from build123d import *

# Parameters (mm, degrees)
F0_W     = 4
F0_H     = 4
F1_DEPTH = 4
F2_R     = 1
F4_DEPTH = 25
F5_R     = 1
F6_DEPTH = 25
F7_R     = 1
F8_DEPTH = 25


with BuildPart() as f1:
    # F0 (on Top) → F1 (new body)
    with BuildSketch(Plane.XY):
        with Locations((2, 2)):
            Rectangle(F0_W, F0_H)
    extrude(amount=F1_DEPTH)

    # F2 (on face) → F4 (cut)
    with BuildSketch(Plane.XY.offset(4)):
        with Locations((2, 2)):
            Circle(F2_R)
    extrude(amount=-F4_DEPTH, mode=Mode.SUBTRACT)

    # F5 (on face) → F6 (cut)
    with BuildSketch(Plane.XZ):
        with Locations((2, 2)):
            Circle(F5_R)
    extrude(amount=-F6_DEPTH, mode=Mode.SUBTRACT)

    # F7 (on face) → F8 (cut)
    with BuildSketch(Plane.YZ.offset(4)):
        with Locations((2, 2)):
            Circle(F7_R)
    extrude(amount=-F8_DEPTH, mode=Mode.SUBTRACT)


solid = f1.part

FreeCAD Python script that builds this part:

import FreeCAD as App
import Part
import Sketcher

V = App.Vector
Q = App.Units.Quantity


def add_polygon(sketch, points):
    """Adds a closed chain of lines whose ends are joined by coincident constraints."""
    first, n = sketch.GeometryCount, len(points)
    for a, b in zip(points, points[1:] + points[:1]):
        sketch.addGeometry(Part.LineSegment(App.Vector(*a, 0), App.Vector(*b, 0)), False)
    for i in range(n):
        sketch.addConstraint(Sketcher.Constraint("Coincident", first + i, 2, first + (i + 1) % n, 1))

doc = App.newDocument("Part")
body = doc.addObject("PartDesign::Body", "Body")

# Sketch on XY plane
sketch1 = doc.addObject("Sketcher::SketchObject", "Sketch")
body.addObject(sketch1)
sketch1.AttachmentSupport = (doc.XY_Plane, [""])
sketch1.MapMode = "FlatFace"
add_polygon(sketch1, [(0, 4), (0, 0), (4, 0), (4, 4)])  # lines 0-3
sketch1.addConstraint([
    Sketcher.Constraint("Vertical", 0),
    Sketcher.Constraint("Horizontal", 1),
    Sketcher.Constraint("Vertical", 2),
    Sketcher.Constraint("Horizontal", 3),
    Sketcher.Constraint("Coincident", 0, 2, -1, 1),
    Sketcher.Constraint("Equal", 3, 0),
    Sketcher.Constraint("DistanceX", 1, 1, 1, 2, Q("4 mm")),
])
pad1 = doc.addObject("PartDesign::Pad", "Pad")
body.addObject(pad1)
pad1.Profile = sketch1
pad1.Length = 4

# Sketch on XY plane
sketch2 = doc.addObject("Sketcher::SketchObject", "Sketch001")
body.addObject(sketch2)
sketch2.AttachmentSupport = (doc.XY_Plane, [""])
sketch2.MapMode = "FlatFace"
sketch2.AttachmentOffset = App.Placement(V(0, 0, 4), App.Rotation())
sketch2.addGeometry(Part.Circle(V(2, 2, 0), V(0, 0, 1), 1), False)
sketch2.addConstraint([
    Sketcher.Constraint("Diameter", 0, Q("2 mm")),
    Sketcher.Constraint("DistanceX", -1, 1, 0, 3, Q("2 mm")),
    Sketcher.Constraint("DistanceY", -1, 1, 0, 3, Q("2 mm")),
])
pocket1 = doc.addObject("PartDesign::Pocket", "Pocket")
body.addObject(pocket1)
pocket1.Profile = sketch2
pocket1.Length = 25

# Sketch on XZ plane
sketch3 = doc.addObject("Sketcher::SketchObject", "Sketch002")
body.addObject(sketch3)
sketch3.AttachmentSupport = (doc.XZ_Plane, [""])
sketch3.MapMode = "FlatFace"
sketch3.addGeometry(Part.Circle(V(2, 2, 0), V(0, 0, 1), 1), False)
sketch3.addConstraint([
    Sketcher.Constraint("Diameter", 0, Q("2 mm")),
    Sketcher.Constraint("DistanceX", -1, 1, 0, 3, Q("2 mm")),
    Sketcher.Constraint("DistanceY", -1, 1, 0, 3, Q("2 mm")),
])
pocket2 = doc.addObject("PartDesign::Pocket", "Pocket001")
body.addObject(pocket2)
pocket2.Profile = sketch3
pocket2.Length = 25

# Sketch on YZ plane
sketch4 = doc.addObject("Sketcher::SketchObject", "Sketch003")
body.addObject(sketch4)
sketch4.AttachmentSupport = (doc.YZ_Plane, [""])
sketch4.MapMode = "FlatFace"
sketch4.AttachmentOffset = App.Placement(V(0, 0, 4), App.Rotation())
sketch4.addGeometry(Part.Circle(V(2, 2, 0), V(0, 0, 1), 1), False)
sketch4.addConstraint([
    Sketcher.Constraint("Diameter", 0, Q("2 mm")),
    Sketcher.Constraint("DistanceX", -1, 1, 0, 3, Q("2 mm")),
    Sketcher.Constraint("DistanceY", -1, 1, 0, 3, Q("2 mm")),
])
pocket3 = doc.addObject("PartDesign::Pocket", "Pocket002")
body.addObject(pocket3)
pocket3.Profile = sketch4
pocket3.Length = 25

doc.recompute()
